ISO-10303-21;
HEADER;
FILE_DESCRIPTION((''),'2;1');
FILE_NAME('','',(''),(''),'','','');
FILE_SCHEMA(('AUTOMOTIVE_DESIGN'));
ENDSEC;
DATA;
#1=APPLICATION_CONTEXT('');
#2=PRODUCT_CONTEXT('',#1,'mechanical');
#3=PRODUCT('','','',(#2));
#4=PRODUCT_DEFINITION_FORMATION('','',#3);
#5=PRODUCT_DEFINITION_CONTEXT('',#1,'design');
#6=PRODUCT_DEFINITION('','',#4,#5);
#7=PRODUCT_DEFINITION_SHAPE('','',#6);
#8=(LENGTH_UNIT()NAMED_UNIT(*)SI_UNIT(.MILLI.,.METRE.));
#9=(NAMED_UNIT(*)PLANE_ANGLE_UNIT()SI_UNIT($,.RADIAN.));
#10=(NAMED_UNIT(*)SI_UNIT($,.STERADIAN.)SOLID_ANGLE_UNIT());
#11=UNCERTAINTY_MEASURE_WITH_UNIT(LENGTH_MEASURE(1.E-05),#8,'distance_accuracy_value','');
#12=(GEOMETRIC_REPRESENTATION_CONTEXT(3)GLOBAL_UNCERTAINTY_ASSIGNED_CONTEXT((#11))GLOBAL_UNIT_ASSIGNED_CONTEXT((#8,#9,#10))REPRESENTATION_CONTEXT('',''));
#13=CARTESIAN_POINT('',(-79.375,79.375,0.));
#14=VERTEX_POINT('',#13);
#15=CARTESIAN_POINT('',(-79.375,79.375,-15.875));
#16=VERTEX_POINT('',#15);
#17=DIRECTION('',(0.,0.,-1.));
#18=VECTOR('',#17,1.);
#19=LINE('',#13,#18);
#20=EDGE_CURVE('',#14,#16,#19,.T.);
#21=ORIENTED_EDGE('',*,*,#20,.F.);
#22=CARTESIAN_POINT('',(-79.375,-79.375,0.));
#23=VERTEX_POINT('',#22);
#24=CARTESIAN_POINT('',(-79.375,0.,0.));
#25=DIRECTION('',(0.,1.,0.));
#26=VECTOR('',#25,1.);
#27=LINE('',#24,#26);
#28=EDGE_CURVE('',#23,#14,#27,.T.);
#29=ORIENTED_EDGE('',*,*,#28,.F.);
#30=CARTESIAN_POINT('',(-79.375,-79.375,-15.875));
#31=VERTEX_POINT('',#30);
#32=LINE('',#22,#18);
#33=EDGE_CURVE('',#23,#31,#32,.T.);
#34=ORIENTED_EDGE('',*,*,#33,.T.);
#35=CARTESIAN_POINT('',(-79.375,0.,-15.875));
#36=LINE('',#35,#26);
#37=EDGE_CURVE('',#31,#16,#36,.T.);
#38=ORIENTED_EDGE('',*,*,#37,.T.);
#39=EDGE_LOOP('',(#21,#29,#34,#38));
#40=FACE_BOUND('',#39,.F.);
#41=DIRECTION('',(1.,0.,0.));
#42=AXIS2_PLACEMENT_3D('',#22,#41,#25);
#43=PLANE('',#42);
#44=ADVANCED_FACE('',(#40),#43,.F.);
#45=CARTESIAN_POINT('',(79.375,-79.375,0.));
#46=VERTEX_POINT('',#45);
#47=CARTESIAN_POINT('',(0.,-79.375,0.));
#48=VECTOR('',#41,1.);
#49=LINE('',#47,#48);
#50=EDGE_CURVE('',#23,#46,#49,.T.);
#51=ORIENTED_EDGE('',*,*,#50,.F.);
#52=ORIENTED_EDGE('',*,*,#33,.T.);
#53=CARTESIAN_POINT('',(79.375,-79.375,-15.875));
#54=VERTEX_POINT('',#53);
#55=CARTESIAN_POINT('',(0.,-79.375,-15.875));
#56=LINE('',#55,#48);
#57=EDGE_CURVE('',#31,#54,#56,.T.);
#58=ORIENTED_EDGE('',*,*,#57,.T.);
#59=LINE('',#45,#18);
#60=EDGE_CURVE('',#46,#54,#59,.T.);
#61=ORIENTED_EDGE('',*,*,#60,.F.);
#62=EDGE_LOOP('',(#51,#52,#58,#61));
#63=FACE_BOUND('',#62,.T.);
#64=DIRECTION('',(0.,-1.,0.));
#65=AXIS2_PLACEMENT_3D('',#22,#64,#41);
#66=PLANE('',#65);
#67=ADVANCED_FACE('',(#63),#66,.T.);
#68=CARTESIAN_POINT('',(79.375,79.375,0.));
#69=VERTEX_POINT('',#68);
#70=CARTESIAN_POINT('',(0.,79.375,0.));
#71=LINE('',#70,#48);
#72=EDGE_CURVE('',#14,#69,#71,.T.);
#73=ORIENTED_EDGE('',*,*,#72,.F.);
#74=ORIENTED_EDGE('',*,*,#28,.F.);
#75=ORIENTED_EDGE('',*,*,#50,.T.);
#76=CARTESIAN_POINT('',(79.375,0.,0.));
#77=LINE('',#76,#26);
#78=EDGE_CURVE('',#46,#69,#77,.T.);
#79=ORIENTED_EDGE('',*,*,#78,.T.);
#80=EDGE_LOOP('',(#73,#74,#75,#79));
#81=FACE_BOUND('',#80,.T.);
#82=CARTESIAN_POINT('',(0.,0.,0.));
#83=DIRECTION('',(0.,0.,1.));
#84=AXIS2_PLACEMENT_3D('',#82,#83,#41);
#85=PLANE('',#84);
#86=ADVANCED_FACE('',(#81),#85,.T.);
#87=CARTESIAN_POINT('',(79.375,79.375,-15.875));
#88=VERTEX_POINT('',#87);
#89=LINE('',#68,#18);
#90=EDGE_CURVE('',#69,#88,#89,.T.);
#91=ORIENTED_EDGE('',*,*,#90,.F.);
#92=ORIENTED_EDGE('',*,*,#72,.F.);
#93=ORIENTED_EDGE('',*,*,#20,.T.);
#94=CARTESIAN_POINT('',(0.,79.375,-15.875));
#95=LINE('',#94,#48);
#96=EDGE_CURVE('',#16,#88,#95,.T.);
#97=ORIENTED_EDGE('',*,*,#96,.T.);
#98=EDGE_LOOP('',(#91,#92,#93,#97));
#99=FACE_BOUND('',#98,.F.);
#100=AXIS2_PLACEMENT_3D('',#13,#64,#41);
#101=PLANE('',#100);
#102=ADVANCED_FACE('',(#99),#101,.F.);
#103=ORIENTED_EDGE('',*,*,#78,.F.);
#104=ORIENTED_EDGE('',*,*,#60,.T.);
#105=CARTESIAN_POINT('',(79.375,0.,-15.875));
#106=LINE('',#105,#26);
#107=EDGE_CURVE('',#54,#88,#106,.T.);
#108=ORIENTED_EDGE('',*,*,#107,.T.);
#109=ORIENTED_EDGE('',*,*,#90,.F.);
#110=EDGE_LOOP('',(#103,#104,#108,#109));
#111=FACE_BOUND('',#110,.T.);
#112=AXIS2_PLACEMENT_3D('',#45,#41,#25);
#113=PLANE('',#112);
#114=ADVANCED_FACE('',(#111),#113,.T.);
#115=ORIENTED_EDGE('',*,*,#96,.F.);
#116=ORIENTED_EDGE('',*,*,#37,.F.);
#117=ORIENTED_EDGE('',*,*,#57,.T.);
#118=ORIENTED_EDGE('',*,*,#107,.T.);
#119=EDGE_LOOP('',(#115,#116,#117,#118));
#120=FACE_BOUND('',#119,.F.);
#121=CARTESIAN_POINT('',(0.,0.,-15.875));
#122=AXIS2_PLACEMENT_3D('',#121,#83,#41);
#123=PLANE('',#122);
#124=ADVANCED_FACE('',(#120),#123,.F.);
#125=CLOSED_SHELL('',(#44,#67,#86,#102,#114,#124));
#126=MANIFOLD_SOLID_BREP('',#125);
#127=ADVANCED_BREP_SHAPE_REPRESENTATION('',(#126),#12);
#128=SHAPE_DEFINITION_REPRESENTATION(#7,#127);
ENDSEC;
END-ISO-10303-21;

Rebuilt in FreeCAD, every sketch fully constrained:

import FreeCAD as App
import Part
import Sketcher
from FreeCAD import Vector
Q = App.Units.Quantity


def add_polygon(sketch, points):
    """Adds a closed chain of lines whose ends are joined by coincident constraints."""
    first, n = sketch.GeometryCount, len(points)
    for a, b in zip(points, points[1:] + points[:1]):
        sketch.addGeometry(Part.LineSegment(App.Vector(*a, 0), App.Vector(*b, 0)), False)
    for i in range(n):
        sketch.addConstraint(Sketcher.Constraint("Coincident", first + i, 2, first + (i + 1) % n, 1))

doc = App.newDocument("Part")
body = doc.addObject("PartDesign::Body", "Body")

# Sketch on XY plane
sketch1 = body.newObject("Sketcher::SketchObject", "Sketch")
sketch1.AttachmentSupport = (doc.getObject("XY_Plane"), [""])
sketch1.MapMode = "FlatFace"
add_polygon(sketch1, [(-79, 79), (-79, -79), (79, -79), (79, 79)])  # lines 0-3
sketch1.addConstraint([
    Sketcher.Constraint("Vertical", 0),
    Sketcher.Constraint("Horizontal", 1),
    Sketcher.Constraint("Vertical", 2),
    Sketcher.Constraint("Horizontal", 3),
    Sketcher.Constraint("Symmetric", 0, 2, 2, 2, -1, 1),
    Sketcher.Constraint("Equal", 3, 0),
    Sketcher.Constraint("DistanceX", 1, 1, 1, 2, Q("6.25 in")),
])
pad1 = body.newObject("PartDesign::Pad", "Pad")
pad1.Profile = sketch1
pad1.Length = Q("0.625 in")
pad1.Reversed = True

# Sketch on XY plane
sketch2 = body.newObject("Sketcher::SketchObject", "Sketch001")
sketch2.AttachmentSupport = (doc.getObject("XY_Plane"), [""])
sketch2.MapMode = "FlatFace"
add_polygon(sketch2, [(-71, 71), (-71, -71), (71, -71), (71, 71)])  # lines 0-3
sketch2.addConstraint([
    Sketcher.Constraint("Vertical", 0),
    Sketcher.Constraint("Horizontal", 1),
    Sketcher.Constraint("Vertical", 2),
    Sketcher.Constraint("Horizontal", 3),
    Sketcher.Constraint("Symmetric", 0, 2, 2, 2, -1, 1),
    Sketcher.Constraint("Equal", 3, 0),
    Sketcher.Constraint("DistanceX", 1, 1, 1, 2, Q("5.625 in")),
])
pad2 = body.newObject("PartDesign::Pad", "Pad001")
pad2.Profile = sketch2
pad2.Length = Q("0.14 in")
pad2.Reversed = True

doc.recompute()
